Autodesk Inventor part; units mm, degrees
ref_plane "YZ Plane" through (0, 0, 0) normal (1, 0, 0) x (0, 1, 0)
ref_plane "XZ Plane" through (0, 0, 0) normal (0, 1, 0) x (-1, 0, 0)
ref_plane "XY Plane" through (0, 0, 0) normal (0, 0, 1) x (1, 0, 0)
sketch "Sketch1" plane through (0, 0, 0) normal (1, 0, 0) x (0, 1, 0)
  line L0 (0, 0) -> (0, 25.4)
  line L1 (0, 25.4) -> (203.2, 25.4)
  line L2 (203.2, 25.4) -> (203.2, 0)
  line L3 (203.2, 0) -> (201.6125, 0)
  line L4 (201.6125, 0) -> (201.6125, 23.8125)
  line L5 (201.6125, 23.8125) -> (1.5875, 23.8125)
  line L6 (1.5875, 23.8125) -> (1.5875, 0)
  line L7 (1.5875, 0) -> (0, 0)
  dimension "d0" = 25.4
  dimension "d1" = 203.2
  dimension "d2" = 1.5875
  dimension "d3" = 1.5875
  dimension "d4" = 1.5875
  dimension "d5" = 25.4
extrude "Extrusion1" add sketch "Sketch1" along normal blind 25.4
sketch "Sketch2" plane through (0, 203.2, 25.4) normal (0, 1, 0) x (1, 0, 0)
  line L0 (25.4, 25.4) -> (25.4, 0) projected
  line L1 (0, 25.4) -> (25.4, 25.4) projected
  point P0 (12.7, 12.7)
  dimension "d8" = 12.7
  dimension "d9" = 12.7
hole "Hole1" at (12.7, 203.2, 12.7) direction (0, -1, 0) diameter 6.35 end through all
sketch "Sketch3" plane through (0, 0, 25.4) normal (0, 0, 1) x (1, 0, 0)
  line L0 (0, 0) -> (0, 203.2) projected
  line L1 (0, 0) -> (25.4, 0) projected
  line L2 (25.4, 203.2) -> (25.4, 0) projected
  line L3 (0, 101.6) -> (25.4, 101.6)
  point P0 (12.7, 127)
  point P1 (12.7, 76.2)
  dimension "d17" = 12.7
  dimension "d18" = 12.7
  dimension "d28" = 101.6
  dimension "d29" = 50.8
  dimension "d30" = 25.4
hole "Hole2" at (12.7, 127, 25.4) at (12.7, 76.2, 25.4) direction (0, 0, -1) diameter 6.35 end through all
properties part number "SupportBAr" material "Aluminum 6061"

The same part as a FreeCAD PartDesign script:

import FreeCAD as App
import Part
import Sketcher

V = App.Vector
Q = App.Units.Quantity


def add_polygon(sketch, points):
    """Adds a closed chain of lines whose ends are joined by coincident constraints."""
    first, n = sketch.GeometryCount, len(points)
    for a, b in zip(points, points[1:] + points[:1]):
        sketch.addGeometry(Part.LineSegment(App.Vector(*a, 0), App.Vector(*b, 0)), False)
    for i in range(n):
        sketch.addConstraint(Sketcher.Constraint("Coincident", first + i, 2, first + (i + 1) % n, 1))

doc = App.newDocument("Part")
body = doc.addObject("PartDesign::Body", "Body")

sketch1 = body.newObject("Sketcher::SketchObject", "Sketch")
sketch1.AttachmentSupport = (doc.getObject("YZ_Plane"), [""])
sketch1.MapMode = "FlatFace"
add_polygon(sketch1, [(0, 25.4), (0, 0), (1.6, 0), (1.6, 23.8), (201.6, 23.8), (201.6, 0), (203.2, 0), (203.2, 25.4)])
sketch1.addConstraint(Sketcher.Constraint("Vertical", 0))
sketch1.addConstraint(Sketcher.Constraint("Horizontal", 1))
sketch1.addConstraint(Sketcher.Constraint("Vertical", 2))
sketch1.addConstraint(Sketcher.Constraint("Horizontal", 3))
sketch1.addConstraint(Sketcher.Constraint("Vertical", 4))
sketch1.addConstraint(Sketcher.Constraint("Horizontal", 5))
sketch1.addConstraint(Sketcher.Constraint("Vertical", 6))
sketch1.addConstraint(Sketcher.Constraint("Horizontal", 7))
sketch1.addConstraint(Sketcher.Constraint("Coincident", 0, 2, -1, 1))
sketch1.addConstraint(Sketcher.Constraint("PointOnObject", 4, 2, -1))
sketch1.addConstraint(Sketcher.Constraint("Equal", 1, 5))
sketch1.addConstraint(Sketcher.Constraint("DistanceX", 7, 2, 7, 1, Q("8 in")))
sketch1.addConstraint(Sketcher.Constraint("DistanceY", 0, 2, 0, 1, Q("1 in")))
sketch1.addConstraint(Sketcher.Constraint("DistanceX", 1, 1, 1, 2, Q("0.0625 in")))
sketch1.addConstraint(Sketcher.Constraint("DistanceY", 3, 2, 6, 2, Q("0.0625 in")))
pad1 = body.newObject("PartDesign::Pad", "Pad")
pad1.Profile = sketch1
pad1.Length = Q("1 in")

sketch2 = body.newObject("Sketcher::SketchObject", "Sketch001")
sketch2.AttachmentSupport = (doc.getObject("XZ_Plane"), [""])
sketch2.MapMode = "FlatFace"
sketch2.AttachmentOffset = App.Placement(V(0, 0, -8 * 25.4), App.Rotation())
sketch2.addGeometry(Part.Circle(V(12.7, 12.7, 0), V(0, 0, 1), 3.2), False)
sketch2.addConstraint(Sketcher.Constraint("Diameter", 0, Q("0.25 in")))
sketch2.addConstraint(Sketcher.Constraint("DistanceX", -1, 1, 0, 3, Q("0.5 in")))
sketch2.addConstraint(Sketcher.Constraint("DistanceY", -1, 1, 0, 3, Q("0.5 in")))
doc.recompute()
hole = body.newObject("PartDesign::Hole", "Hole")
hole.Profile = sketch2
hole.ThreadType = "None"
hole.Diameter = Q("0.25 in")
hole.DepthType = "ThroughAll"
hole.Reversed = True

sketch3 = body.newObject("Sketcher::SketchObject", "Sketch002")
sketch3.AttachmentSupport = (doc.getObject("XY_Plane"), [""])
sketch3.MapMode = "FlatFace"
sketch3.AttachmentOffset = App.Placement(V(0, 0, 1 * 25.4), App.Rotation())
sketch3.addGeometry(Part.Circle(V(12.7, 127, 0), V(0, 0, 1), 3.2), False)
sketch3.addGeometry(Part.Circle(V(12.7, 76.2, 0), V(0, 0, 1), 3.2), False)
sketch3.addConstraint(Sketcher.Constraint("Equal", 0, 1))
sketch3.addConstraint(Sketcher.Constraint("Vertical", 0, 3, 1, 3))
sketch3.addConstraint(Sketcher.Constraint("Diameter", 0, Q("0.25 in")))
sketch3.addConstraint(Sketcher.Constraint("DistanceY", -1, 1, 0, 3, Q("5 in")))
sketch3.addConstraint(Sketcher.Constraint("DistanceY", -1, 1, 1, 3, Q("3 in")))
sketch3.addConstraint(Sketcher.Constraint("DistanceX", -1, 1, 0, 3, Q("0.5 in")))
doc.recompute()
hole2 = body.newObject("PartDesign::Hole", "Hole001")
hole2.Profile = sketch3
hole2.ThreadType = "None"
hole2.Diameter = Q("0.25 in")
hole2.DepthType = "ThroughAll"

doc.recompute()
